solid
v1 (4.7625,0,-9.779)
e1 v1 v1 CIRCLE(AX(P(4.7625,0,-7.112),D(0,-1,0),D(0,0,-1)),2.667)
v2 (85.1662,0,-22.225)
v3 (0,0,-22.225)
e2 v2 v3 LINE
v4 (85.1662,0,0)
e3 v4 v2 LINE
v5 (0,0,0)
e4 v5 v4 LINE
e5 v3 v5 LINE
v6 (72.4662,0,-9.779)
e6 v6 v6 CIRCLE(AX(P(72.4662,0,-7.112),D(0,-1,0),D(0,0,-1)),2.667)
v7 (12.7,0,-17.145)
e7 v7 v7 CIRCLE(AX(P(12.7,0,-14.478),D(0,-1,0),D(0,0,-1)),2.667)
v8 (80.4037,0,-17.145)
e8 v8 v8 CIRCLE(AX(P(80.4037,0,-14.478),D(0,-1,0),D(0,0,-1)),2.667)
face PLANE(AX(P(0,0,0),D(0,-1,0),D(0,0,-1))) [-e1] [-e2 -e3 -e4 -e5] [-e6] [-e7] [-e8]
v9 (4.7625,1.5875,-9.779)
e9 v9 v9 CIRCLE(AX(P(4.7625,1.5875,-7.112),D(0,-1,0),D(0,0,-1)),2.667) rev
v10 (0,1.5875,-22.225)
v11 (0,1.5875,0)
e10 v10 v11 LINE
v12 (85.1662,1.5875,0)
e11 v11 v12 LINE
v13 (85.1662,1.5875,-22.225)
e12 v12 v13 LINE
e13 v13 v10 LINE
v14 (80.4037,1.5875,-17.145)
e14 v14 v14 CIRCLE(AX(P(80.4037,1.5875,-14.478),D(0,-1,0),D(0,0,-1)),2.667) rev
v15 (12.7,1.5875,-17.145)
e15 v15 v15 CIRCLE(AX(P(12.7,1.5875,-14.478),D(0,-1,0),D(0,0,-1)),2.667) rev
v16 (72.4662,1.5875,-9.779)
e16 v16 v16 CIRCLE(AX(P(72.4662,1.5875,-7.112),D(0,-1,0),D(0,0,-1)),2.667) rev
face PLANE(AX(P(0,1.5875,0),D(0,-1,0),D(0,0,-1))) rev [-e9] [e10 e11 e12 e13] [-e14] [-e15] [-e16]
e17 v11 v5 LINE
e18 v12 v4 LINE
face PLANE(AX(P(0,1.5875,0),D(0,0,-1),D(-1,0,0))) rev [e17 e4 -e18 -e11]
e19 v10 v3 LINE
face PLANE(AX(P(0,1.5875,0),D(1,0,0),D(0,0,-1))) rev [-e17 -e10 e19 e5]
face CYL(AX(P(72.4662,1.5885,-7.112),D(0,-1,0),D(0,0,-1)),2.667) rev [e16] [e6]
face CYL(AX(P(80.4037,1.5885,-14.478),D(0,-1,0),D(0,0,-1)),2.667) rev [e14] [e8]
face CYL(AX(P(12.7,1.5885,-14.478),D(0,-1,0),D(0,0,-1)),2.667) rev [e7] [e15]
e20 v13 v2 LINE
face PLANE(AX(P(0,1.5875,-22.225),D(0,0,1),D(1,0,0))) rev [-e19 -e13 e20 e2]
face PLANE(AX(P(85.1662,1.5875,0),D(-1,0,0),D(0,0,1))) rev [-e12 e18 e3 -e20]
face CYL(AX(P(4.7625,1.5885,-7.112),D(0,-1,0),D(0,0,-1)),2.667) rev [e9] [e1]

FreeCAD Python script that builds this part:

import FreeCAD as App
import Part
import Sketcher
from FreeCAD import Vector
Q = App.Units.Quantity

doc = App.newDocument("Part")
body = doc.addObject("PartDesign::Body", "Body")

# Sketch on XZ plane
sketch1 = doc.addObject("Sketcher::SketchObject", "Sketch")
body.addObject(sketch1)
sketch1.AttachmentSupport = (doc.XZ_Plane, [""])
sketch1.MapMode = "FlatFace"
sketch1.addGeometry([
    Part.LineSegment(Vector(0, -22.225, 0), Vector(0, 0, 0)),
    Part.LineSegment(Vector(0, 0, 0), Vector(85.1662, 0, 0)),
    Part.LineSegment(Vector(85.1662, 0, 0), Vector(85.1662, -22.225, 0)),
    Part.LineSegment(Vector(85.1662, -22.225, 0), Vector(0, -22.225, 0)),
], False)
sketch1.addConstraint([
    Sketcher.Constraint("Coincident", 0, 2, 1, 1),
    Sketcher.Constraint("Coincident", 1, 2, 2, 1),
    Sketcher.Constraint("Coincident", 2, 2, 3, 1),
    Sketcher.Constraint("Coincident", 3, 2, 0, 1),
    Sketcher.Constraint("Vertical", 0),
    Sketcher.Constraint("Horizontal", 1),
    Sketcher.Constraint("Vertical", 2),
    Sketcher.Constraint("Horizontal", 3),
    Sketcher.Constraint("Coincident", 0, 2, -1, 1),
    Sketcher.Constraint("DistanceX", 1, 1, 1, 2, Q("3.353 in")),
    Sketcher.Constraint("DistanceY", 0, 1, 0, 2, Q("0.875 in")),
])
pad1 = doc.addObject("PartDesign::Pad", "Pad")
body.addObject(pad1)
pad1.Profile = sketch1
pad1.Length = Q("0.0625 in")
pad1.Reversed = True

# Sketch on XZ plane
sketch2 = doc.addObject("Sketcher::SketchObject", "Sketch001")
body.addObject(sketch2)
sketch2.AttachmentSupport = (doc.XZ_Plane, [""])
sketch2.MapMode = "FlatFace"
sketch2.addGeometry(Part.Circle(Vector(4.7625, -7.112, 0), Vector(0, 0, 1), 2.667), False)
sketch2.addConstraint([
    Sketcher.Constraint("Diameter", 0, Q("0.21 in")),
    Sketcher.Constraint("DistanceY", 0, 3, -1, 1, Q("0.28 in")),
    Sketcher.Constraint("DistanceX", -1, 1, 0, 3, Q("0.1875 in")),
])
pocket1 = doc.addObject("PartDesign::Pocket", "Pocket")
body.addObject(pocket1)
pocket1.Profile = sketch2
pocket1.Type = "UpToFirst"

# Sketch on XZ plane
sketch3 = doc.addObject("Sketcher::SketchObject", "Sketch002")
body.addObject(sketch3)
sketch3.AttachmentSupport = (doc.XZ_Plane, [""])
sketch3.MapMode = "FlatFace"
sketch3.addGeometry(Part.Circle(Vector(12.7, -14.478, 0), Vector(0, 0, 1), 2.667), False)
sketch3.addConstraint([
    Sketcher.Constraint("Diameter", 0, Q("0.21 in")),
    Sketcher.Constraint("DistanceX", -1, 1, 0, 3, Q("0.5 in")),
    Sketcher.Constraint("DistanceY", 0, 3, -1, 1, Q("0.57 in")),
])
pocket2 = doc.addObject("PartDesign::Pocket", "Pocket001")
body.addObject(pocket2)
pocket2.Profile = sketch3
pocket2.Type = "UpToFirst"

# Sketch on XZ plane
sketch4 = doc.addObject("Sketcher::SketchObject", "Sketch003")
body.addObject(sketch4)
sketch4.AttachmentSupport = (doc.XZ_Plane, [""])
sketch4.MapMode = "FlatFace"
sketch4.addGeometry(Part.Circle(Vector(72.4662, -7.112, 0), Vector(0, 0, 1), 2.667), False)
sketch4.addConstraint([
    Sketcher.Constraint("Diameter", 0, Q("0.21 in")),
    Sketcher.Constraint("DistanceY", 0, 3, -1, 1, Q("0.28 in")),
    Sketcher.Constraint("DistanceX", -1, 1, 0, 3, Q("2.853 in")),
])
pocket3 = doc.addObject("PartDesign::Pocket", "Pocket002")
body.addObject(pocket3)
pocket3.Profile = sketch4
pocket3.Type = "UpToFirst"

# Sketch on XZ plane
sketch5 = doc.addObject("Sketcher::SketchObject", "Sketch004")
body.addObject(sketch5)
sketch5.AttachmentSupport = (doc.XZ_Plane, [""])
sketch5.MapMode = "FlatFace"
sketch5.addGeometry(Part.Circle(Vector(80.4037, -14.478, 0), Vector(0, 0, 1), 2.667), False)
sketch5.addConstraint([
    Sketcher.Constraint("Diameter", 0, Q("0.21 in")),
    Sketcher.Constraint("DistanceY", 0, 3, -1, 1, Q("0.57 in")),
    Sketcher.Constraint("DistanceX", -1, 1, 0, 3, Q("3.1655 in")),
])
pocket4 = doc.addObject("PartDesign::Pocket", "Pocket003")
body.addObject(pocket4)
pocket4.Profile = sketch5
pocket4.Type = "UpToFirst"

doc.recompute()
